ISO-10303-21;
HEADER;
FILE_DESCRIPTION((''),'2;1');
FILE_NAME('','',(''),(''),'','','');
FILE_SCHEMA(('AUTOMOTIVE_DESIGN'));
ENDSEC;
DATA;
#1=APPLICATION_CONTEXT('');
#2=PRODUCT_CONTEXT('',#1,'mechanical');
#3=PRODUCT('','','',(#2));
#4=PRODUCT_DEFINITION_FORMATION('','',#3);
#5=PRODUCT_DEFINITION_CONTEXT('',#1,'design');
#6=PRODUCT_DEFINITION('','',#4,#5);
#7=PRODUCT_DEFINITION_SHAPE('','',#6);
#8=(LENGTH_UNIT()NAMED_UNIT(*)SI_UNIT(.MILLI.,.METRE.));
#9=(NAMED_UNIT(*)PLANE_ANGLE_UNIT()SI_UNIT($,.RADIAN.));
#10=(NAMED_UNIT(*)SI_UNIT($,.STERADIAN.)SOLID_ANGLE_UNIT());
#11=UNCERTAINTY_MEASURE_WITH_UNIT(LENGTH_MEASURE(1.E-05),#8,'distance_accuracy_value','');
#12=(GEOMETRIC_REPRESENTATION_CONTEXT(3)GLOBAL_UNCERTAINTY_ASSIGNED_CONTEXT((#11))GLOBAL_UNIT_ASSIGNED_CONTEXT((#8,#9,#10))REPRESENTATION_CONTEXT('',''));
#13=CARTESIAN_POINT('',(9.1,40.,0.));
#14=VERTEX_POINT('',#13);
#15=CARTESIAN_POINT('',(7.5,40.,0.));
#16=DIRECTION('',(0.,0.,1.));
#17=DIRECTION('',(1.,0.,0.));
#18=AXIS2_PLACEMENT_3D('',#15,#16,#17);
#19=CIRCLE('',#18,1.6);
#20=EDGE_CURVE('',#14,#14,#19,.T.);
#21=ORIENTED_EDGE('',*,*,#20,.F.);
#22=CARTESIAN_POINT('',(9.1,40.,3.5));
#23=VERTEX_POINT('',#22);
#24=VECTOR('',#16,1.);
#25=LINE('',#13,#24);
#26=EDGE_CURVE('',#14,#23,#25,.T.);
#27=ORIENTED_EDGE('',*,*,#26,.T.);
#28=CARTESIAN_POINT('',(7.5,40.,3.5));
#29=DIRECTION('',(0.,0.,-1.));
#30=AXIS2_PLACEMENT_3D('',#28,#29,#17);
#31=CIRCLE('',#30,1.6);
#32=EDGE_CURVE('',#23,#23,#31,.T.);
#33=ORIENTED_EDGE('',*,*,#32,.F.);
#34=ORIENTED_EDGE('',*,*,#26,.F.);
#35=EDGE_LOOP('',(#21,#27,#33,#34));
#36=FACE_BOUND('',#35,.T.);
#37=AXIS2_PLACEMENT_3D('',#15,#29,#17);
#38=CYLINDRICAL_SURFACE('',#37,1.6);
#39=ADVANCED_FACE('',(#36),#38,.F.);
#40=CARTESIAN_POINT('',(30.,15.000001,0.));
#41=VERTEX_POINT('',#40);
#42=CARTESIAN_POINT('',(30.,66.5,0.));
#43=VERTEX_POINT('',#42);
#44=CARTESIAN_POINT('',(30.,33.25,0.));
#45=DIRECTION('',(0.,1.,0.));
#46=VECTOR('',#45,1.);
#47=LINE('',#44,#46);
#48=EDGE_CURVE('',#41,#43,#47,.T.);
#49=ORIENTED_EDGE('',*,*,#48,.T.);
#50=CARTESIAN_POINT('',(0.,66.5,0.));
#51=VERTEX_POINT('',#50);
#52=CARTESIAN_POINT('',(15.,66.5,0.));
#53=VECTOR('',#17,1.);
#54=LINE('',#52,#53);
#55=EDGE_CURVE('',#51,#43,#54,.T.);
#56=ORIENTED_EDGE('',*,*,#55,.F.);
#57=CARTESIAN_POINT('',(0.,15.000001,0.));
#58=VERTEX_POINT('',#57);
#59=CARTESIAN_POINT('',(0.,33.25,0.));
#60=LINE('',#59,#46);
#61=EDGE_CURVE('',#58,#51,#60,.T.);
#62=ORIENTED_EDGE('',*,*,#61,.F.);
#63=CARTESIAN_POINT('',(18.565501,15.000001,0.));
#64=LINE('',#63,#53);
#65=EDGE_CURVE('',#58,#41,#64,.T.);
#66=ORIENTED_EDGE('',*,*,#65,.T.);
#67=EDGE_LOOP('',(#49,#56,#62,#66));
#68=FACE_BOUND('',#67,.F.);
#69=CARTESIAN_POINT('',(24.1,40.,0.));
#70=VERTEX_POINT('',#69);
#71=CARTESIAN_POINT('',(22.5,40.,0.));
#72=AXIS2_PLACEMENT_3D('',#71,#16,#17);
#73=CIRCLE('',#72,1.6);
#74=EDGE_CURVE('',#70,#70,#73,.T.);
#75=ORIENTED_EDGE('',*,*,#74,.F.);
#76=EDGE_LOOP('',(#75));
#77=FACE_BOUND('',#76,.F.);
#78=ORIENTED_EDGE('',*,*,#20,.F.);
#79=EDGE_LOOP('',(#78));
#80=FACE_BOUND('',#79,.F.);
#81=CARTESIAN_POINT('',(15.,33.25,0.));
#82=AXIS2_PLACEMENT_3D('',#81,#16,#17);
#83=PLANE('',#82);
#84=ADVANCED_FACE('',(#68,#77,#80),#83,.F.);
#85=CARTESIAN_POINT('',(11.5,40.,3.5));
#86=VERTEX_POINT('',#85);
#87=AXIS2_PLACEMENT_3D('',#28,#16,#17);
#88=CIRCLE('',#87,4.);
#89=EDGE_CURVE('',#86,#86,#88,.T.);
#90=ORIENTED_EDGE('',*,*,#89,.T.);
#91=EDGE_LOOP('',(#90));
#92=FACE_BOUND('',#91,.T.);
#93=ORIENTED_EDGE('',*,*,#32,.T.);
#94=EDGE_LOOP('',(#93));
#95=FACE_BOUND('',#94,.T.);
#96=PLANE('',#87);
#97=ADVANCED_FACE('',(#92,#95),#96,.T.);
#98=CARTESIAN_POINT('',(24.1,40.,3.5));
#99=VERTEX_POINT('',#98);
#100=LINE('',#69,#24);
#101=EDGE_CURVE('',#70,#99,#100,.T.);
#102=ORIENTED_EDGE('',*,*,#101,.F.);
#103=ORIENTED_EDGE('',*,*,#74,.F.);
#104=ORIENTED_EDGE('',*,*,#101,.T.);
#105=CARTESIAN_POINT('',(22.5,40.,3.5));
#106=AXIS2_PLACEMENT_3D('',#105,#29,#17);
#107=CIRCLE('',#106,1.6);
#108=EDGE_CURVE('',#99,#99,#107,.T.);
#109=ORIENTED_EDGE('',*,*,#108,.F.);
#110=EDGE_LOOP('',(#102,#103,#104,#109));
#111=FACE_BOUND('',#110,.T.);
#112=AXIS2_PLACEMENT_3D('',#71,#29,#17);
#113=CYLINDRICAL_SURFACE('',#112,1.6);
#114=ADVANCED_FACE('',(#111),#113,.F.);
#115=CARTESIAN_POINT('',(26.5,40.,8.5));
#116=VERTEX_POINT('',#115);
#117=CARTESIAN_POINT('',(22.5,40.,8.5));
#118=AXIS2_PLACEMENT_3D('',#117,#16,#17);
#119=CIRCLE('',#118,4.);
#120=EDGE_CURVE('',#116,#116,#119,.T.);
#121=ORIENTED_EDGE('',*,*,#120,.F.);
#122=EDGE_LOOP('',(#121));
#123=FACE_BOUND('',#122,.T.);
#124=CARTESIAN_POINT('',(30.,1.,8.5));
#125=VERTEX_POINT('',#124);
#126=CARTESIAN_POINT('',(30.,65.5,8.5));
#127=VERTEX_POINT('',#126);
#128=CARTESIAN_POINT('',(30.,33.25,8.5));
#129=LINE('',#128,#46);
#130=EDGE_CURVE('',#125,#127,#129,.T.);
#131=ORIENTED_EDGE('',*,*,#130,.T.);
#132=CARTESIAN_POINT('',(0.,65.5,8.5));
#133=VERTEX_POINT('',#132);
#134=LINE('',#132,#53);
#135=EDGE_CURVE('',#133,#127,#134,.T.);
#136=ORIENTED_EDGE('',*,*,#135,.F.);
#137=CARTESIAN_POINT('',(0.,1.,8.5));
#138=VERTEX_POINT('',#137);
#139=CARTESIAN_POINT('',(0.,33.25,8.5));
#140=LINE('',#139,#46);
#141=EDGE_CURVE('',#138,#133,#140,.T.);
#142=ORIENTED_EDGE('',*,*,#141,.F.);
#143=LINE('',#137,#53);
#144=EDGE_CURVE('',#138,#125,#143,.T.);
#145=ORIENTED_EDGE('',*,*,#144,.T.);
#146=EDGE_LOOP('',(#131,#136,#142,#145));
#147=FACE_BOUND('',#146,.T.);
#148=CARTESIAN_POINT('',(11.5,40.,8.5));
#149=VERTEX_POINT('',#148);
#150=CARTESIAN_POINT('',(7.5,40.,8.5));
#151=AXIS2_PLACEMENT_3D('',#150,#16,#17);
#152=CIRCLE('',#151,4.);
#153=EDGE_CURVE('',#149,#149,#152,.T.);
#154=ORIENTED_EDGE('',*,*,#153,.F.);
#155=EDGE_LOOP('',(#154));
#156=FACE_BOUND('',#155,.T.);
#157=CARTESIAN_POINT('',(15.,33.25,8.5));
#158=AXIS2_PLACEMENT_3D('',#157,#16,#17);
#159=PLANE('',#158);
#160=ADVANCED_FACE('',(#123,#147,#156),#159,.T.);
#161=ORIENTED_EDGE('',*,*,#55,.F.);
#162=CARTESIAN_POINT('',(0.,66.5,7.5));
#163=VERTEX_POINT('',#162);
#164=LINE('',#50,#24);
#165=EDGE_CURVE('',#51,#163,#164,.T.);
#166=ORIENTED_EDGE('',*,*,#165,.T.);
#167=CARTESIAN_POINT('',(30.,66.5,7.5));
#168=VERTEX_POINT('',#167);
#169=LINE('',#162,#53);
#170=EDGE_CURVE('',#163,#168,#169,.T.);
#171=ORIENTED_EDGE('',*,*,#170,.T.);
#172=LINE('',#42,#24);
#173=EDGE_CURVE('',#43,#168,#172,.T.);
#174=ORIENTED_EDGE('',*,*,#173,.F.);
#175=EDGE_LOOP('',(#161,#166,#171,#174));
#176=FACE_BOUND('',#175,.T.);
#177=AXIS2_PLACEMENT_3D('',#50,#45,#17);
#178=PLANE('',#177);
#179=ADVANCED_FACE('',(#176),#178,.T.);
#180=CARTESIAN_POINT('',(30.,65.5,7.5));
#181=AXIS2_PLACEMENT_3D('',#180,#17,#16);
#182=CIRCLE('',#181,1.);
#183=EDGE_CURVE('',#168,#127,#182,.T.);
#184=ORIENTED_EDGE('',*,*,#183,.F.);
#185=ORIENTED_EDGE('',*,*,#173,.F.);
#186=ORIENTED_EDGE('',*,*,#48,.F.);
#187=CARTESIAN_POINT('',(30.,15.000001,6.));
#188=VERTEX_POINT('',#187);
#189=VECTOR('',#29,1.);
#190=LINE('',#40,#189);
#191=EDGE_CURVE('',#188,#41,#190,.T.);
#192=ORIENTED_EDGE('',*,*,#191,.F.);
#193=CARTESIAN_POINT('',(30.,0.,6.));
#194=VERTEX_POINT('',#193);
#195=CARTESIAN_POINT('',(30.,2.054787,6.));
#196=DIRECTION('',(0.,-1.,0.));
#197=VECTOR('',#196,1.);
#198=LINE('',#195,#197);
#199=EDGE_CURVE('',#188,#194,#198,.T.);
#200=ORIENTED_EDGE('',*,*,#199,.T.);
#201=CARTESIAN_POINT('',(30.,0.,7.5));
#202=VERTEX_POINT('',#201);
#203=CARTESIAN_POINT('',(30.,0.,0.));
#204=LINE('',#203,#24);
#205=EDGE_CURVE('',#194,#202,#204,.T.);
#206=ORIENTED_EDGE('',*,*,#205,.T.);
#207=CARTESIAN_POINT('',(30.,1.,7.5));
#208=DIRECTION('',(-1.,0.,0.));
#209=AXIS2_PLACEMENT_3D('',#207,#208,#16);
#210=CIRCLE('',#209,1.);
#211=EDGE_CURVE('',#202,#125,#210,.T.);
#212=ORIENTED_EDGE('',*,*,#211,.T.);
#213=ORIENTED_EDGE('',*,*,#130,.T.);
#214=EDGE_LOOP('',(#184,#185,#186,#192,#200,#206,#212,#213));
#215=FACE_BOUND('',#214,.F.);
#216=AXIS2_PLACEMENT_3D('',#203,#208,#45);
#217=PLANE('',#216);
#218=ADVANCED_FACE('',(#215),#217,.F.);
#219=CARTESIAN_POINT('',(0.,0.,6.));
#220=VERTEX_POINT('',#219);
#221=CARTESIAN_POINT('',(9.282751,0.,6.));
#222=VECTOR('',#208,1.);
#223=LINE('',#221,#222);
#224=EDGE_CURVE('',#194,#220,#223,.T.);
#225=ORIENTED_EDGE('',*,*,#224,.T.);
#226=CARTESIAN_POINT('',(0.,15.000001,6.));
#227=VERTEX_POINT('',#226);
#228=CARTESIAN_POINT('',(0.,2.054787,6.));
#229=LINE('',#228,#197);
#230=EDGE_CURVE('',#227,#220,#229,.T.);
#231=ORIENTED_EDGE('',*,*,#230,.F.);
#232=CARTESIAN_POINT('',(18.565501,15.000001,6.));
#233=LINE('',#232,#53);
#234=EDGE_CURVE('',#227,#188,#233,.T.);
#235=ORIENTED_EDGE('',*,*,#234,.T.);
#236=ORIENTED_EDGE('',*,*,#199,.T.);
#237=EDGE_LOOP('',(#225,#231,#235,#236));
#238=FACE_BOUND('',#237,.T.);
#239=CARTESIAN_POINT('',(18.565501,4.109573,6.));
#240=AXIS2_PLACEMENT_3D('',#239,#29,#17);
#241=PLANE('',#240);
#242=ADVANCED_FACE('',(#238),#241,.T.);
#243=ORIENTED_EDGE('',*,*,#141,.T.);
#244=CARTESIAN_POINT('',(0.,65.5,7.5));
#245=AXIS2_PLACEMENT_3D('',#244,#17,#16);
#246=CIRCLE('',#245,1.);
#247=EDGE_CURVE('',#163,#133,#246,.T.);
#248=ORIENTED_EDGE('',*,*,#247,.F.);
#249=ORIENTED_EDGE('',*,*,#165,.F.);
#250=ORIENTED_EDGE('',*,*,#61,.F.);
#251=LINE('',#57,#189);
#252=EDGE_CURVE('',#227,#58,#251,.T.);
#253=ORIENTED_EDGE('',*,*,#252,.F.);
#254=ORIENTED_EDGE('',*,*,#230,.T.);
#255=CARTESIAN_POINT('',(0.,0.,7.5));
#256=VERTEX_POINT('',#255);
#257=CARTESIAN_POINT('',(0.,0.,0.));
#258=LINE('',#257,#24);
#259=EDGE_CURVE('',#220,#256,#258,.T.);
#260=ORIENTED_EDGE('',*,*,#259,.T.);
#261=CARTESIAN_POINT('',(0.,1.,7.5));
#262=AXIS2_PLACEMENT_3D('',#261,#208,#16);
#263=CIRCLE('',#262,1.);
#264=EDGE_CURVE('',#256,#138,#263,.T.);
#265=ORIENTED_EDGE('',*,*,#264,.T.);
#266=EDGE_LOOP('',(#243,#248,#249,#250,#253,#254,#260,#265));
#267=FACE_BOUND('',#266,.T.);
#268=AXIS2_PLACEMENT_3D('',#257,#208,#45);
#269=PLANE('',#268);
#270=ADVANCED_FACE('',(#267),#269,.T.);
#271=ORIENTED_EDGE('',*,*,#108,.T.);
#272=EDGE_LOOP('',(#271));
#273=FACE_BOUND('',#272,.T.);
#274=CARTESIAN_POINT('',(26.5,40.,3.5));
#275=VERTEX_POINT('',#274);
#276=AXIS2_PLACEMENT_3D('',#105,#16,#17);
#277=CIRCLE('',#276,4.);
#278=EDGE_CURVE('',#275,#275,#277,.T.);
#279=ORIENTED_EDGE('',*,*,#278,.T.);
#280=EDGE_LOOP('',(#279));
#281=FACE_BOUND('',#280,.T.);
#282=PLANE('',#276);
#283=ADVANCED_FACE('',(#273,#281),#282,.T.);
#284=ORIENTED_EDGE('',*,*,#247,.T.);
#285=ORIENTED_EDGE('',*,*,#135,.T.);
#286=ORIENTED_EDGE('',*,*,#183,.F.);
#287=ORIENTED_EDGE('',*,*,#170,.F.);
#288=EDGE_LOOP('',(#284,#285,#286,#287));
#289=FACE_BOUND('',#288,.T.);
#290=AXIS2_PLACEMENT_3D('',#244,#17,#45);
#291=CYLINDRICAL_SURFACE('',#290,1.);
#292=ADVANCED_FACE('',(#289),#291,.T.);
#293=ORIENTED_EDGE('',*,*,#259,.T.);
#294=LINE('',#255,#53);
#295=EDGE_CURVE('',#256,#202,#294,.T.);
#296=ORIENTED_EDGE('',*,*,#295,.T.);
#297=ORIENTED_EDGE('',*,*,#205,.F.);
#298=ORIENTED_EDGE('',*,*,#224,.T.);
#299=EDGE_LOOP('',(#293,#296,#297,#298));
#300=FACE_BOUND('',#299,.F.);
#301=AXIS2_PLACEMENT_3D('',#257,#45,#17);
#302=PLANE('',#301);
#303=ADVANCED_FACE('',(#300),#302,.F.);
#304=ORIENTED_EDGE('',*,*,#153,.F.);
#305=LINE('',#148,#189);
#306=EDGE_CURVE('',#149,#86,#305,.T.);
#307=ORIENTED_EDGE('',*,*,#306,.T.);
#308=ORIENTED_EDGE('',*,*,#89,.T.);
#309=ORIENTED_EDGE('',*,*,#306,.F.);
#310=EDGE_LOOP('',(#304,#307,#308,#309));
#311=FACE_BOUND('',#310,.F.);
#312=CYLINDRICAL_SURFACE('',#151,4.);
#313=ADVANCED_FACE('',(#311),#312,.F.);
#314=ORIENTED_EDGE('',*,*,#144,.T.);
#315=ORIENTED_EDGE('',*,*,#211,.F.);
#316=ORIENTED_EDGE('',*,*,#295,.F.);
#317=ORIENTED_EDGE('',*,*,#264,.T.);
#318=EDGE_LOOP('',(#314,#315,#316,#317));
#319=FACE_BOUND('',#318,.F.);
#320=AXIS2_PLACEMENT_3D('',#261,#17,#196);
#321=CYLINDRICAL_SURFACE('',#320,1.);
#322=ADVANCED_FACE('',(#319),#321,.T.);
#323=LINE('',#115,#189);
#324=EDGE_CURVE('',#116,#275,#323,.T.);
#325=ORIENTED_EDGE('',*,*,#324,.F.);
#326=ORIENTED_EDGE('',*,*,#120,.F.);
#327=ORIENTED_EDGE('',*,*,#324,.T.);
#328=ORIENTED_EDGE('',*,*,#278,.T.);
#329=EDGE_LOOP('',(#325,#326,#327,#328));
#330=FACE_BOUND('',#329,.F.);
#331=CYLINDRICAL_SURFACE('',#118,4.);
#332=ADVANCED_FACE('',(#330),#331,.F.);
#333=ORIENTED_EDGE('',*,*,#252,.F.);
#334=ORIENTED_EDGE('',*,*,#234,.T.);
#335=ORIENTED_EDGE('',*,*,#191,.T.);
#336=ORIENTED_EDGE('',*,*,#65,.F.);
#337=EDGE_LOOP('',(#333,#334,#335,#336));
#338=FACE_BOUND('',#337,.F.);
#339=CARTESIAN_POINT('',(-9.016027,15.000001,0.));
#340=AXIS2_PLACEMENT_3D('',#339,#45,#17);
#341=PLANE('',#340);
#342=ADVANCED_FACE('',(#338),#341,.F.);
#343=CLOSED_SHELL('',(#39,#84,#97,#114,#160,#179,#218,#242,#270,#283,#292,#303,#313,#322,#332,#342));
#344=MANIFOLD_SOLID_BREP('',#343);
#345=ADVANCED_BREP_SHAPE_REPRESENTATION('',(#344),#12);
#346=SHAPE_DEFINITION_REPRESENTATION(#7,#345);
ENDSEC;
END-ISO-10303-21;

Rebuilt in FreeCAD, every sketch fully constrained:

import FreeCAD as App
import Part
import Sketcher
from FreeCAD import Vector


def edges_at(feature, points):
    """Names of the edges that pass closest to the given points."""
    edges = feature.Shape.Edges
    near = lambda p: min(range(len(edges)), key=lambda i: edges[i].distToShape(Part.Vertex(*p))[0])
    return sorted({f"Edge{near(p) + 1}" for p in points})


def add_polygon(sketch, points):
    """Adds a closed chain of lines whose ends are joined by coincident constraints."""
    first, n = sketch.GeometryCount, len(points)
    for a, b in zip(points, points[1:] + points[:1]):
        sketch.addGeometry(Part.LineSegment(App.Vector(*a, 0), App.Vector(*b, 0)), False)
    for i in range(n):
        sketch.addConstraint(Sketcher.Constraint("Coincident", first + i, 2, first + (i + 1) % n, 1))

doc = App.newDocument("Part")
params = doc.addObject("Spreadsheet::Sheet", "Params")
for row, (alias, value) in enumerate([
    ("sketch1_diameter", "3.2 mm"),
    ("sketch1_width", "30 mm"),
    ("sketch1_height", "66.5 mm"),
    ("pad1_length", "8.5 mm"),
    ("sketch2_diameter", "8 mm"),
    ("pocket1_length", "5 mm"),
    ("fillet_radius", "1 mm"),
    ("pocket2_length", "6 mm"),
], start=1):
    params.set(f"A{row}", alias)
    params.set(f"B{row}", "=" + value)
    params.setAlias(f"B{row}", alias)

body = doc.addObject("PartDesign::Body", "Body")

sketch1 = doc.addObject("Sketcher::SketchObject", "Sketch")
body.addObject(sketch1)
sketch1.AttachmentSupport = (doc.XY_Plane, [""])
sketch1.MapMode = "FlatFace"
add_polygon(sketch1, [(0, 66.5), (0, 0), (30, 0), (30, 66.5)])
sketch1.addGeometry(Part.Circle(Vector(7.5, 40, 0), Vector(0, 0, 1), 1.6), False)
sketch1.addGeometry(Part.Circle(Vector(22.5, 40, 0), Vector(0, 0, 1), 1.6), False)
sketch1.addConstraint(Sketcher.Constraint("Vertical", 0))
sketch1.addConstraint(Sketcher.Constraint("Horizontal", 1))
sketch1.addConstraint(Sketcher.Constraint("Vertical", 2))
sketch1.addConstraint(Sketcher.Constraint("Horizontal", 3))
sketch1.addConstraint(Sketcher.Constraint("Coincident", 0, 2, -1, 1))
sketch1.addConstraint(Sketcher.Constraint("Equal", 4, 5))
sketch1.addConstraint(Sketcher.Constraint("Horizontal", 4, 3, 5, 3))
sketch1.addConstraint(Sketcher.Constraint("Diameter", 4, 3.2))
sketch1.addConstraint(Sketcher.Constraint("DistanceX", 1, 1, 1, 2, 30.0))
sketch1.addConstraint(Sketcher.Constraint("DistanceY", 0, 2, 0, 1, 66.5))
sketch1.addConstraint(Sketcher.Constraint("DistanceY", -1, 1, 4, 3, 40.0))
sketch1.addConstraint(Sketcher.Constraint("DistanceX", 4, 3, 5, 3, 15.0))
sketch1.addConstraint(Sketcher.Constraint("DistanceX", -1, 1, 4, 3, 7.5))
sketch1.setExpression("Constraints[11]", "Params.sketch1_diameter")
sketch1.setExpression("Constraints[12]", "Params.sketch1_width")
sketch1.setExpression("Constraints[13]", "Params.sketch1_height")
pad1 = doc.addObject("PartDesign::Pad", "Pad")
body.addObject(pad1)
pad1.Profile = sketch1
pad1.setExpression("Length", "Params.pad1_length")

sketch2 = doc.addObject("Sketcher::SketchObject", "Sketch001")
body.addObject(sketch2)
sketch2.AttachmentSupport = (doc.XY_Plane, [""])
sketch2.MapMode = "FlatFace"
sketch2.AttachmentOffset = App.Placement(Vector(0, 0, 8.5), App.Rotation())
sketch2.addGeometry(Part.Circle(Vector(7.5, 40, 0), Vector(0, 0, 1), 4), False)
sketch2.addGeometry(Part.Circle(Vector(22.5, 40, 0), Vector(0, 0, 1), 4), False)
sketch2.addConstraint(Sketcher.Constraint("Equal", 0, 1))
sketch2.addConstraint(Sketcher.Constraint("Horizontal", 0, 3, 1, 3))
sketch2.addConstraint(Sketcher.Constraint("Diameter", 0, 8.0))
sketch2.addConstraint(Sketcher.Constraint("DistanceY", -1, 1, 0, 3, 40.0))
sketch2.addConstraint(Sketcher.Constraint("DistanceX", 0, 3, 1, 3, 15.0))
sketch2.addConstraint(Sketcher.Constraint("DistanceX", -1, 1, 0, 3, 7.5))
sketch2.setExpression("Constraints[2]", "Params.sketch2_diameter")
pocket1 = doc.addObject("PartDesign::Pocket", "Pocket")
body.addObject(pocket1)
pocket1.Profile = sketch2
pocket1.setExpression("Length", "Params.pocket1_length")
doc.recompute()

fillet = doc.addObject("PartDesign::Fillet", "Fillet")
body.addObject(fillet)
fillet.Base = (pocket1, edges_at(pocket1, [(15, 66.5, 8.5), (15, 0, 8.5)]))
fillet.setExpression("Radius", "Params.fillet_radius")

sketch3 = doc.addObject("Sketcher::SketchObject", "Sketch002")
body.addObject(sketch3)
sketch3.AttachmentSupport = (doc.XY_Plane, [""])
sketch3.MapMode = "FlatFace"
add_polygon(sketch3, [(-9.016027, -6.780855), (-9.016027, 15.000001), (46.14703, 15.000001), (46.14703, -6.780855)])
sketch3.addConstraint(Sketcher.Constraint("Vertical", 0))
sketch3.addConstraint(Sketcher.Constraint("Horizontal", 1))
sketch3.addConstraint(Sketcher.Constraint("Vertical", 2))
sketch3.addConstraint(Sketcher.Constraint("Horizontal", 3))
sketch3.addConstraint(Sketcher.Constraint("DistanceY", -1, 1, 0, 2, 15.000001))
sketch3.addConstraint(Sketcher.Constraint("DistanceX", 1, 1, 1, 2, 55.163057))
sketch3.addConstraint(Sketcher.Constraint("DistanceY", 0, 1, 0, 2, 21.780855))
sketch3.addConstraint(Sketcher.Constraint("DistanceX", -1, 1, 1, 2, 46.14703))
pocket2 = doc.addObject("PartDesign::Pocket", "Pocket001")
body.addObject(pocket2)
pocket2.Profile = sketch3
pocket2.setExpression("Length", "Params.pocket2_length")
pocket2.Reversed = True

doc.recompute()
